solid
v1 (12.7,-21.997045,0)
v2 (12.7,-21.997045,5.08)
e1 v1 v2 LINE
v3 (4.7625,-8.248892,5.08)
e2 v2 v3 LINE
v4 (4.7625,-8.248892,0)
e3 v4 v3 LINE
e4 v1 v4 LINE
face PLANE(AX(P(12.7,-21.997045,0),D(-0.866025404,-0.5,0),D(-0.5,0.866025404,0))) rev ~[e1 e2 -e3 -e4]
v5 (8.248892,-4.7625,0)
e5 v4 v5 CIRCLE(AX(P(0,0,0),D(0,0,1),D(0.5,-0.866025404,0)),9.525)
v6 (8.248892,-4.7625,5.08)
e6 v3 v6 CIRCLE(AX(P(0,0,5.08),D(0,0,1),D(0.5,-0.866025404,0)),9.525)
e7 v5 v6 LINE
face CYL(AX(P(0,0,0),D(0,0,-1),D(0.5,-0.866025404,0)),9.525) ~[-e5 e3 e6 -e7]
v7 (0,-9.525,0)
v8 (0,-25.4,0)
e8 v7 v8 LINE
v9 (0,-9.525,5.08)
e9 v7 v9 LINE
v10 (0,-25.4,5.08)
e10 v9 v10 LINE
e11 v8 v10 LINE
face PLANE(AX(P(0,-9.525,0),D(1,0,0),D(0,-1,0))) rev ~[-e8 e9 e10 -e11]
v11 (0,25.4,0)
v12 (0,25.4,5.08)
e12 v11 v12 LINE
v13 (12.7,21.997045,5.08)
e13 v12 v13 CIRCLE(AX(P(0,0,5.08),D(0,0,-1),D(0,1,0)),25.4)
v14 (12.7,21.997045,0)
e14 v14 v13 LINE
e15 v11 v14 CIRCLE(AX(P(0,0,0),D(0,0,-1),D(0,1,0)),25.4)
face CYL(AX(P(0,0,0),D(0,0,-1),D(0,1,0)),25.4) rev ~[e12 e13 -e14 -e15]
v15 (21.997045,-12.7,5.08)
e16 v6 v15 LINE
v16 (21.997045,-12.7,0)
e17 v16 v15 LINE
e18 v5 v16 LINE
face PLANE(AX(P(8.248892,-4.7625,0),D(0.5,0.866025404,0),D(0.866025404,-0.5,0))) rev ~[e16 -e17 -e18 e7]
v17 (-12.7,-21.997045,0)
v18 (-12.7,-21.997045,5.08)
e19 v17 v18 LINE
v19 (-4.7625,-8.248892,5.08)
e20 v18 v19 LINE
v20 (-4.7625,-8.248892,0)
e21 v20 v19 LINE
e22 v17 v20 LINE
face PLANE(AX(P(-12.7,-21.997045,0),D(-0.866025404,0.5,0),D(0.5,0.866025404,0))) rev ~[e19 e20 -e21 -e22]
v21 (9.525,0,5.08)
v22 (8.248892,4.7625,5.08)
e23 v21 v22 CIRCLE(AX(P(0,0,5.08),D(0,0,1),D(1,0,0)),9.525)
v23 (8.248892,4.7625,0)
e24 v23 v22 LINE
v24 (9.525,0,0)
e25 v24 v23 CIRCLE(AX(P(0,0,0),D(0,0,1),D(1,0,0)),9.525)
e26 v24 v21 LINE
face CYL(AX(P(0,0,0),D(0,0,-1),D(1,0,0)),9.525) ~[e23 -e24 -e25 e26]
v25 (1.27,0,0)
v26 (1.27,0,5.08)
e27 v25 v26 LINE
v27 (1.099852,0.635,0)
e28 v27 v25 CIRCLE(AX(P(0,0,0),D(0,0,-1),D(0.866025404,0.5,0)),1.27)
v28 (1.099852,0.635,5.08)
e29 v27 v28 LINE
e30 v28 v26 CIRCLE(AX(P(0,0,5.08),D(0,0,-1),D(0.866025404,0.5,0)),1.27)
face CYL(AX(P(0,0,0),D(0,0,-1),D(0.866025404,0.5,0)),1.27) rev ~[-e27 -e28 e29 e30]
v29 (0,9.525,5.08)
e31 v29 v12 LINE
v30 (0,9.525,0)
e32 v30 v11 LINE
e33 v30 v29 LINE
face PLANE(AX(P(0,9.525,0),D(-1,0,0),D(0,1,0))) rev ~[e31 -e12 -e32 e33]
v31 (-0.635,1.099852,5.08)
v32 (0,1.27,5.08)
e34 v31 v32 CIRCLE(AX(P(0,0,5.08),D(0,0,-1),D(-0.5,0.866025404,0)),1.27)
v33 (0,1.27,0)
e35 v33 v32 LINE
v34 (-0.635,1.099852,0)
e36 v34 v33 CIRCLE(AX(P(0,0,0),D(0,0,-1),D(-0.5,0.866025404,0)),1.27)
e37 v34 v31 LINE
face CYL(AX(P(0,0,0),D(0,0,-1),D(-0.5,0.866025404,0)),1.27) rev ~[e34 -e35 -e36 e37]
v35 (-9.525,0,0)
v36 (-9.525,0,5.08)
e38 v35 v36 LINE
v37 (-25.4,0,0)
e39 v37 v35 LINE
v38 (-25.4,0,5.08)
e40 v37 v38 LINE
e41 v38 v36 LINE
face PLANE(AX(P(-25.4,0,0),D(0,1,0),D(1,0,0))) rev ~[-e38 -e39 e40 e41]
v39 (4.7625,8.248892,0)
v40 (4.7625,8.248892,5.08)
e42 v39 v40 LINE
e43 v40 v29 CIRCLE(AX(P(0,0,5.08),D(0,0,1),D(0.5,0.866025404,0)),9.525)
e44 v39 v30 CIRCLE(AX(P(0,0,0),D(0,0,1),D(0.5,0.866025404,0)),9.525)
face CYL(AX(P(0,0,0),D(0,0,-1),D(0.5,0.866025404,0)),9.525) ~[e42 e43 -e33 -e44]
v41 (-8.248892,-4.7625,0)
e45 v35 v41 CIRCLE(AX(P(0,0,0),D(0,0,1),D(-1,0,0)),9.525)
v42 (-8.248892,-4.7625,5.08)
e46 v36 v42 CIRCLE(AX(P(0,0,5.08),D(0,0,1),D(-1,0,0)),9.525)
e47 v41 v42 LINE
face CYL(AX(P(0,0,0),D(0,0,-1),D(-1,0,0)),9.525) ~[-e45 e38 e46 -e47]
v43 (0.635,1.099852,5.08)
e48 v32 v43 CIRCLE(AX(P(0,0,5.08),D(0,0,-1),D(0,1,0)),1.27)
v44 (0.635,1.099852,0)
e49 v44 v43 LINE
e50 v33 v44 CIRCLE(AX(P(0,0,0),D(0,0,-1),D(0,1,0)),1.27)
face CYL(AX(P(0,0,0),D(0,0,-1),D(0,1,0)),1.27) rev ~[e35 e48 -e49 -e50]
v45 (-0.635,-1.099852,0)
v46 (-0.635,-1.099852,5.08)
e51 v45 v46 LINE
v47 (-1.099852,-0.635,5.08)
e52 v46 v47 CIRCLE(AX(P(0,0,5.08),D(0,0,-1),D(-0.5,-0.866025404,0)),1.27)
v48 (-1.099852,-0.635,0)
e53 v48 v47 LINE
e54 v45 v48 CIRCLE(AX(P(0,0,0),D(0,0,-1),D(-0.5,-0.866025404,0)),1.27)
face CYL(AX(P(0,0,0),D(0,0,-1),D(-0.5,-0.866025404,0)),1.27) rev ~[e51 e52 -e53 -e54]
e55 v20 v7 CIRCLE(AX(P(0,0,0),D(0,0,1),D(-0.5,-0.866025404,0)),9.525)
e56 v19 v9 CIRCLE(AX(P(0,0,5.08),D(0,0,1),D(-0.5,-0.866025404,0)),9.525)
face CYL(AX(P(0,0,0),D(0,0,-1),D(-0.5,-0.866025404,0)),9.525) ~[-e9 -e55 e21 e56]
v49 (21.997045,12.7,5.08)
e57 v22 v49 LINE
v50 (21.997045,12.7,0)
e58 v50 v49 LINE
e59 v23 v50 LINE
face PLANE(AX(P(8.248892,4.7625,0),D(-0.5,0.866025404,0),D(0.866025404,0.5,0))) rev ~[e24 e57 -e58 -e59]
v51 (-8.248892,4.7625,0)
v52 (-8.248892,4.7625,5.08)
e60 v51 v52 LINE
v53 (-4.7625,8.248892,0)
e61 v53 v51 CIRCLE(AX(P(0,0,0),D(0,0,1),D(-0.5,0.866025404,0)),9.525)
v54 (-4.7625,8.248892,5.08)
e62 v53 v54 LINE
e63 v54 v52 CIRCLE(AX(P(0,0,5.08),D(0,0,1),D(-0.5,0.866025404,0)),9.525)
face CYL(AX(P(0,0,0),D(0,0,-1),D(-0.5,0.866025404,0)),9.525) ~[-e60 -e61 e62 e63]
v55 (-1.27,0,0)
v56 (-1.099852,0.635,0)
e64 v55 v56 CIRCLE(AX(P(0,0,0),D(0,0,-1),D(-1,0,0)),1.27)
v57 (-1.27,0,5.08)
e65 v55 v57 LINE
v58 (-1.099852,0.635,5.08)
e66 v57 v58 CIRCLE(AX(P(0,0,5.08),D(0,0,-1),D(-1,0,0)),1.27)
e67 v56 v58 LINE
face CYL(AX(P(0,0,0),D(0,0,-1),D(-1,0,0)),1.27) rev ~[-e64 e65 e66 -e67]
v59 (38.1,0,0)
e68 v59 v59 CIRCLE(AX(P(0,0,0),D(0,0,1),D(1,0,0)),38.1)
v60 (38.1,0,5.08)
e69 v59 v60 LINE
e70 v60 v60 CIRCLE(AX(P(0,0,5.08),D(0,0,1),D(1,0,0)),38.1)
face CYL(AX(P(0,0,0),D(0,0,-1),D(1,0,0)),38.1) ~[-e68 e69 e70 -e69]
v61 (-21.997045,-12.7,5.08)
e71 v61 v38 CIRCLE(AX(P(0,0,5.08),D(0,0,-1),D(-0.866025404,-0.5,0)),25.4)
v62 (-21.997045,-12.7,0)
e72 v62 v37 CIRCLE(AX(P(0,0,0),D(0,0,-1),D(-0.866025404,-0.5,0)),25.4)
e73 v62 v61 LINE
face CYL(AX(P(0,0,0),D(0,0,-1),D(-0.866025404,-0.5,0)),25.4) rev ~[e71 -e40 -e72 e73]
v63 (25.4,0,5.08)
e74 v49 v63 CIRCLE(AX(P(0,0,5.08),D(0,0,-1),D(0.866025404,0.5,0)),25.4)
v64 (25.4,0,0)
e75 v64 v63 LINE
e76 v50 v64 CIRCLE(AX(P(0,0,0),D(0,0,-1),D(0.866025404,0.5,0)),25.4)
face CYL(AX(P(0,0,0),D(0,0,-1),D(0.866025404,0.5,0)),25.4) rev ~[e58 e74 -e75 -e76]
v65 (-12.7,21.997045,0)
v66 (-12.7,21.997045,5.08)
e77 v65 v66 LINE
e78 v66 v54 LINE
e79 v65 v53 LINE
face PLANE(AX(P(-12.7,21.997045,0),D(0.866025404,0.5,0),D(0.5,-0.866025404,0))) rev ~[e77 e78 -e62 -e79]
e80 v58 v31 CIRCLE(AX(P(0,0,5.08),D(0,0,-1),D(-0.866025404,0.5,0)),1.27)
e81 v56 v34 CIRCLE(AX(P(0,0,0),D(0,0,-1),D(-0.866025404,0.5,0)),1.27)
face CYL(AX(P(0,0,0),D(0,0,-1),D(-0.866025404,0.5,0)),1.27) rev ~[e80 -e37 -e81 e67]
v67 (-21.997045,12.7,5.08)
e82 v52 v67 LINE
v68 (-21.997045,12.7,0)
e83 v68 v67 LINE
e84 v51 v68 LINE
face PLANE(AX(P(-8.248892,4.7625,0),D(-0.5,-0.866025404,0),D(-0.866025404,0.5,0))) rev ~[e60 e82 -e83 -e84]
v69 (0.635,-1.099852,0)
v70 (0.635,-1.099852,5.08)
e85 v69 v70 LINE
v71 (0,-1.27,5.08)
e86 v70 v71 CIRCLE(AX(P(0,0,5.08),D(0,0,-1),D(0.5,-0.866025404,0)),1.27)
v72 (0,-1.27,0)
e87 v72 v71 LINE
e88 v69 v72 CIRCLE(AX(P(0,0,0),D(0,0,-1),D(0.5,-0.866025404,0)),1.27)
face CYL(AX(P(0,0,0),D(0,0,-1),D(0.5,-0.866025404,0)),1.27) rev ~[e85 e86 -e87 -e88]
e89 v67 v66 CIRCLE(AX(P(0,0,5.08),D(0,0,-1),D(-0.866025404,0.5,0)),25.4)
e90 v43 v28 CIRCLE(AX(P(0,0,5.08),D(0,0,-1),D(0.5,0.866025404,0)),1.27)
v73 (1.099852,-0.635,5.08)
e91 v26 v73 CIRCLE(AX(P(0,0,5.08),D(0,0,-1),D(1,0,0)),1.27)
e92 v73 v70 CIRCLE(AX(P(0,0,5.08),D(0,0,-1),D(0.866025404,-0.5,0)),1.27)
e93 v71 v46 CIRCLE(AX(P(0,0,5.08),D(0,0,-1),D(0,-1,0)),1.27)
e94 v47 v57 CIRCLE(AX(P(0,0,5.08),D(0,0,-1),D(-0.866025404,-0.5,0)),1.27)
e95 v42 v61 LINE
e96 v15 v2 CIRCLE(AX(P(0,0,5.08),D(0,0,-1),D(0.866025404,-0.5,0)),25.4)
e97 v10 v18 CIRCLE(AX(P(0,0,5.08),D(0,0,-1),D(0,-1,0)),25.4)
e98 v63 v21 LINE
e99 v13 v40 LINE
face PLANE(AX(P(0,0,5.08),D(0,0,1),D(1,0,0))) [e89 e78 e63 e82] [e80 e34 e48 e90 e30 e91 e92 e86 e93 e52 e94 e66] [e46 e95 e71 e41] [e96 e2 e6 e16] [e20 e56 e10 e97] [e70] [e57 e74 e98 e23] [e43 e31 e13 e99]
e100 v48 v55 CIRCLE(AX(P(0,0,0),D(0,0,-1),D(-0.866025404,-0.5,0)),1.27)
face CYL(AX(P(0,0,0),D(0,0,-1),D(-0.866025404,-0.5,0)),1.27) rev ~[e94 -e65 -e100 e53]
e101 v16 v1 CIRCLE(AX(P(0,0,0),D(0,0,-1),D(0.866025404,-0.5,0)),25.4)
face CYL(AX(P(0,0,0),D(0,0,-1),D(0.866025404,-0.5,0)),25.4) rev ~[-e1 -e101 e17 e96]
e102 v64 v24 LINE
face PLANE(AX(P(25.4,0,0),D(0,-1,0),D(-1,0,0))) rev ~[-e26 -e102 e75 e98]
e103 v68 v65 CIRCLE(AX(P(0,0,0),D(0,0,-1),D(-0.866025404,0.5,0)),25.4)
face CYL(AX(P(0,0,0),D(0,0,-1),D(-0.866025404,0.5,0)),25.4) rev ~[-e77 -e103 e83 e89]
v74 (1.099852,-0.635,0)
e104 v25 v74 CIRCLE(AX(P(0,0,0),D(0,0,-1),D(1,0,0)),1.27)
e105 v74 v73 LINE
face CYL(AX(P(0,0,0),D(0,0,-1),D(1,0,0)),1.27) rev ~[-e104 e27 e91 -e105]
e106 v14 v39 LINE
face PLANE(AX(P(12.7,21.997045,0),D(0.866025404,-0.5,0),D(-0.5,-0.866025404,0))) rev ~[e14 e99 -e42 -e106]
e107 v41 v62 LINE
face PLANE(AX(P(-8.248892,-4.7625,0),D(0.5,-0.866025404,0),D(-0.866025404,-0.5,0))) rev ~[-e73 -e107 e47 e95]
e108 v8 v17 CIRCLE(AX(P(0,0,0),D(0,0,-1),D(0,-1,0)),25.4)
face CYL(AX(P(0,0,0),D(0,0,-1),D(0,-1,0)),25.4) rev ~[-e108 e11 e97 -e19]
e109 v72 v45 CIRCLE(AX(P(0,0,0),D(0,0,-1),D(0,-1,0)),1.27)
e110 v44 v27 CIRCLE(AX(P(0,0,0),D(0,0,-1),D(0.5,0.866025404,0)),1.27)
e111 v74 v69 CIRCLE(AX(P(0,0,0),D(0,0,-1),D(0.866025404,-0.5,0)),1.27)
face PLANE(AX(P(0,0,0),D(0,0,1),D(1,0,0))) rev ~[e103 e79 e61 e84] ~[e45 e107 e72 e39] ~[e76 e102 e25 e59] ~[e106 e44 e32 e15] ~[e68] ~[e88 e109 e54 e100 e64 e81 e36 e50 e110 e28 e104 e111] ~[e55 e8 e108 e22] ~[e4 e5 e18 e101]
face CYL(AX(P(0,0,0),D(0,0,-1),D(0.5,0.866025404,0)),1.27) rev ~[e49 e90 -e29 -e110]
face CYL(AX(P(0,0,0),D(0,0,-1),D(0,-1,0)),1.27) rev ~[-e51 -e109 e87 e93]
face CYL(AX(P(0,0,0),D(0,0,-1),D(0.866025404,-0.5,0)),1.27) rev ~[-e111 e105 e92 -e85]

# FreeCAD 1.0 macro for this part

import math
import FreeCAD as App
import Part
import Sketcher
Q = App.Units.Quantity

doc = App.newDocument("Part")
body = doc.addObject("PartDesign::Body", "Body")

# Sketch on XY plane
sketch1 = body.newObject("Sketcher::SketchObject", "Sketch")
sketch1.AttachmentSupport = (doc.getObject("XY_Plane"), [""])
sketch1.MapMode = "FlatFace"
sketch1.addGeometry([
    Part.Circle(App.Vector(0, 0, 0), App.Vector(0, 0, 1), 38.1),  # 0
    Part.ArcOfCircle(Part.Circle(App.Vector(0, 0, 0), App.Vector(0, 0, 1), 9.5), math.radians(-120), math.radians(-90)),  # 1
    Part.LineSegment(App.Vector(0, -9.5, 0), App.Vector(0, -25.4, 0)),  # 2
    Part.ArcOfCircle(Part.Circle(App.Vector(0, 0, 0), App.Vector(0, 0, 1), 25.4), math.radians(-120), math.radians(-90)),  # 3
    Part.LineSegment(App.Vector(-12.7, -22, 0), App.Vector(-4.8, -8.2, 0)),  # 4
    Part.LineSegment(App.Vector(-25.4, 0, 0), App.Vector(-9.5, 0, 0)),  # 5
    Part.ArcOfCircle(Part.Circle(App.Vector(0, 0, 0), App.Vector(0, 0, 1), 9.5), math.radians(180), math.radians(210)),  # 6
    Part.LineSegment(App.Vector(-8.2, -4.8, 0), App.Vector(-22, -12.7, 0)),  # 7
    Part.ArcOfCircle(Part.Circle(App.Vector(0, 0, 0), App.Vector(0, 0, 1), 25.4), math.radians(180), math.radians(210)),  # 8
    Part.ArcOfCircle(Part.Circle(App.Vector(0, 0, 0), App.Vector(0, 0, 1), 1.3), math.radians(150), math.radians(180)),  # 9
    Part.ArcOfCircle(Part.Circle(App.Vector(0, 0, 0), App.Vector(0, 0, 1), 1.3), math.radians(120), math.radians(150)),  # 10
    Part.ArcOfCircle(Part.Circle(App.Vector(0, 0, 0), App.Vector(0, 0, 1), 1.3), math.radians(90), math.radians(120)),  # 11
    Part.ArcOfCircle(Part.Circle(App.Vector(0, 0, 0), App.Vector(0, 0, 1), 1.3), math.radians(60), math.radians(90)),  # 12
    Part.ArcOfCircle(Part.Circle(App.Vector(0, 0, 0), App.Vector(0, 0, 1), 1.3), math.radians(30), math.radians(60)),  # 13
    Part.ArcOfCircle(Part.Circle(App.Vector(0, 0, 0), App.Vector(0, 0, 1), 1.3), math.radians(0), math.radians(30)),  # 14
    Part.ArcOfCircle(Part.Circle(App.Vector(0, 0, 0), App.Vector(0, 0, 1), 1.3), math.radians(-30), math.radians(0)),  # 15
    Part.ArcOfCircle(Part.Circle(App.Vector(0, 0, 0), App.Vector(0, 0, 1), 1.3), math.radians(-60), math.radians(-30)),  # 16
    Part.ArcOfCircle(Part.Circle(App.Vector(0, 0, 0), App.Vector(0, 0, 1), 1.3), math.radians(-90), math.radians(-60)),  # 17
    Part.ArcOfCircle(Part.Circle(App.Vector(0, 0, 0), App.Vector(0, 0, 1), 1.3), math.radians(-120), math.radians(-90)),  # 18
    Part.ArcOfCircle(Part.Circle(App.Vector(0, 0, 0), App.Vector(0, 0, 1), 1.3), math.radians(-150), math.radians(-120)),  # 19
    Part.ArcOfCircle(Part.Circle(App.Vector(0, 0, 0), App.Vector(0, 0, 1), 1.3), math.radians(180), math.radians(210)),  # 20
    Part.ArcOfCircle(Part.Circle(App.Vector(0, 0, 0), App.Vector(0, 0, 1), 9.5), math.radians(-60), math.radians(-30)),  # 21
    Part.LineSegment(App.Vector(8.2, -4.8, 0), App.Vector(22, -12.7, 0)),  # 22
    Part.ArcOfCircle(Part.Circle(App.Vector(0, 0, 0), App.Vector(0, 0, 1), 25.4), math.radians(-60), math.radians(-30)),  # 23
    Part.LineSegment(App.Vector(12.7, -22, 0), App.Vector(4.8, -8.2, 0)),  # 24
    Part.ArcOfCircle(Part.Circle(App.Vector(0, 0, 0), App.Vector(0, 0, 1), 9.5), math.radians(120), math.radians(150)),  # 25
    Part.LineSegment(App.Vector(-8.2, 4.8, 0), App.Vector(-22, 12.7, 0)),  # 26
    Part.ArcOfCircle(Part.Circle(App.Vector(0, 0, 0), App.Vector(0, 0, 1), 25.4), math.radians(120), math.radians(150)),  # 27
    Part.LineSegment(App.Vector(-12.7, 22, 0), App.Vector(-4.8, 8.2, 0)),  # 28
    Part.ArcOfCircle(Part.Circle(App.Vector(0, 0, 0), App.Vector(0, 0, 1), 9.5), math.radians(0), math.radians(30)),  # 29
    Part.LineSegment(App.Vector(8.2, 4.8, 0), App.Vector(22, 12.7, 0)),  # 30
    Part.ArcOfCircle(Part.Circle(App.Vector(0, 0, 0), App.Vector(0, 0, 1), 25.4), math.radians(0), math.radians(30)),  # 31
    Part.LineSegment(App.Vector(25.4, 0, 0), App.Vector(9.5, 0, 0)),  # 32
    Part.ArcOfCircle(Part.Circle(App.Vector(0, 0, 0), App.Vector(0, 0, 1), 9.5), math.radians(60), math.radians(90)),  # 33
    Part.LineSegment(App.Vector(0, 9.5, 0), App.Vector(0, 25.4, 0)),  # 34
    Part.ArcOfCircle(Part.Circle(App.Vector(0, 0, 0), App.Vector(0, 0, 1), 25.4), math.radians(60), math.radians(90)),  # 35
    Part.LineSegment(App.Vector(12.7, 22, 0), App.Vector(4.8, 8.2, 0)),  # 36
], False)
sketch1.addConstraint([
    Sketcher.Constraint("Coincident", 1, 2, 2, 1),
    Sketcher.Constraint("Coincident", 2, 2, 3, 2),
    Sketcher.Constraint("Coincident", 3, 1, 4, 1),
    Sketcher.Constraint("Coincident", 4, 2, 1, 1),
    Sketcher.Constraint("Coincident", 5, 2, 6, 1),
    Sketcher.Constraint("Coincident", 6, 2, 7, 1),
    Sketcher.Constraint("Coincident", 7, 2, 8, 2),
    Sketcher.Constraint("Coincident", 8, 1, 5, 1),
    Sketcher.Constraint("Tangent", 9, 1, 10, 2),
    Sketcher.Constraint("Tangent", 10, 1, 11, 2),
    Sketcher.Constraint("Tangent", 11, 1, 12, 2),
    Sketcher.Constraint("Tangent", 12, 1, 13, 2),
    Sketcher.Constraint("Tangent", 13, 1, 14, 2),
    Sketcher.Constraint("Tangent", 14, 1, 15, 2),
    Sketcher.Constraint("Tangent", 15, 1, 16, 2),
    Sketcher.Constraint("Tangent", 16, 1, 17, 2),
    Sketcher.Constraint("Tangent", 17, 1, 18, 2),
    Sketcher.Constraint("Tangent", 18, 1, 19, 2),
    Sketcher.Constraint("Tangent", 19, 1, 20, 2),
    Sketcher.Constraint("Tangent", 20, 1, 9, 2),
    Sketcher.Constraint("Coincident", 21, 2, 22, 1),
    Sketcher.Constraint("Coincident", 22, 2, 23, 2),
    Sketcher.Constraint("Coincident", 23, 1, 24, 1),
    Sketcher.Constraint("Coincident", 24, 2, 21, 1),
    Sketcher.Constraint("Coincident", 25, 2, 26, 1),
    Sketcher.Constraint("Coincident", 26, 2, 27, 2),
    Sketcher.Constraint("Coincident", 27, 1, 28, 1),
    Sketcher.Constraint("Coincident", 28, 2, 25, 1),
    Sketcher.Constraint("Coincident", 29, 2, 30, 1),
    Sketcher.Constraint("Coincident", 30, 2, 31, 2),
    Sketcher.Constraint("Coincident", 31, 1, 32, 1),
    Sketcher.Constraint("Coincident", 32, 2, 29, 1),
    Sketcher.Constraint("Coincident", 33, 2, 34, 1),
    Sketcher.Constraint("Coincident", 34, 2, 35, 2),
    Sketcher.Constraint("Coincident", 35, 1, 36, 1),
    Sketcher.Constraint("Coincident", 36, 2, 33, 1),
    Sketcher.Constraint("Vertical", 2),
    Sketcher.Constraint("Horizontal", 5),
    Sketcher.Constraint("Horizontal", 32),
    Sketcher.Constraint("Vertical", 34),
    Sketcher.Constraint("Coincident", 0, 3, -1, 1),
    Sketcher.Constraint("Coincident", 1, 3, -1, 1),
    Sketcher.Constraint("Coincident", 3, 3, -1, 1),
    Sketcher.Constraint("Coincident", 6, 3, -1, 1),
    Sketcher.Constraint("Coincident", 8, 3, -1, 1),
    Sketcher.Constraint("Coincident", 9, 3, -1, 1),
    Sketcher.Constraint("Coincident", 11, 3, -1, 1),
    Sketcher.Constraint("Coincident", 13, 3, -1, 1),
    Sketcher.Constraint("Coincident", 15, 3, -1, 1),
    Sketcher.Constraint("Coincident", 17, 3, -1, 1),
    Sketcher.Constraint("Coincident", 21, 3, -1, 1),
    Sketcher.Constraint("Coincident", 23, 3, -1, 1),
    Sketcher.Constraint("Coincident", 25, 3, -1, 1),
    Sketcher.Constraint("Coincident", 27, 3, -1, 1),
    Sketcher.Constraint("Coincident", 29, 3, -1, 1),
    Sketcher.Constraint("Coincident", 31, 3, -1, 1),
    Sketcher.Constraint("Coincident", 33, 3, -1, 1),
    Sketcher.Constraint("Coincident", 35, 3, -1, 1),
    Sketcher.Constraint("Equal", 1, 6),
    Sketcher.Constraint("Equal", 3, 8),
    Sketcher.Constraint("Equal", 17, 18),
    Sketcher.Constraint("Equal", 6, 21),
    Sketcher.Constraint("Equal", 8, 23),
    Sketcher.Constraint("Equal", 21, 25),
    Sketcher.Constraint("Equal", 23, 27),
    Sketcher.Constraint("Equal", 25, 29),
    Sketcher.Constraint("Equal", 27, 31),
    Sketcher.Constraint("Equal", 29, 33),
    Sketcher.Constraint("Equal", 31, 35),
    Sketcher.Constraint("PointOnObject", 1, 2, -2),
    Sketcher.Constraint("PointOnObject", 5, 2, -1),
    Sketcher.Constraint("PointOnObject", 11, 1, -2),
    Sketcher.Constraint("PointOnObject", 14, 1, -1),
    Sketcher.Constraint("PointOnObject", 17, 1, -2),
    Sketcher.Constraint("PointOnObject", 20, 1, -1),
    Sketcher.Constraint("PointOnObject", 31, 1, -1),
    Sketcher.Constraint("PointOnObject", 33, 2, -2),
    Sketcher.Constraint("Perpendicular", 4, 22),
    Sketcher.Constraint("Perpendicular", 7, 24),
    Sketcher.Constraint("Parallel", 22, 26),
    Sketcher.Constraint("Parallel", 24, 28),
    Sketcher.Constraint("Perpendicular", 28, 30),
    Sketcher.Constraint("Perpendicular", 26, 36),
    Sketcher.Constraint("Horizontal", 10, 1, 12, 1),
    Sketcher.Constraint("Horizontal", 9, 1, 13, 1),
    Sketcher.Constraint("Horizontal", 16, 1, 18, 1),
    Sketcher.Constraint("Horizontal", 15, 1, 19, 1),
    Sketcher.Constraint("Horizontal", 6, 2, 21, 2),
    Sketcher.Constraint("Horizontal", 7, 2, 22, 2),
    Sketcher.Constraint("Horizontal", 3, 1, 23, 1),
    Sketcher.Constraint("Horizontal", 25, 2, 29, 2),
    Sketcher.Constraint("Horizontal", 27, 1, 35, 1),
    Sketcher.Constraint("Vertical", 13, 1, 15, 1),
    Sketcher.Constraint("Vertical", 12, 1, 16, 1),
    Sketcher.Constraint("Vertical", 6, 2, 25, 2),
    Sketcher.Constraint("Vertical", 3, 1, 27, 1),
    Sketcher.Constraint("Diameter", 0, Q("3 in")),
    Sketcher.Constraint("Radius", 3, Q("1 in")),
    Sketcher.Constraint("Radius", 9, Q("0.05 in")),
    Sketcher.Constraint("Angle", 4, Q("60 deg")),
    Sketcher.Constraint("Radius", 1, Q("0.375 in")),
    Sketcher.Constraint("DistanceX", 3, 1, -1, 1, Q("0.5 in")),
    Sketcher.Constraint("DistanceY", 7, 2, -1, 1, Q("0.5 in")),
    Sketcher.Constraint("DistanceY", -1, 1, 9, 1, Q("0.025 in")),
    Sketcher.Constraint("DistanceX", 10, 1, -1, 1, Q("0.025 in")),
])
pad1 = body.newObject("PartDesign::Pad", "Pad")
pad1.Profile = sketch1
pad1.Length = Q("0.2 in")

doc.recompute()
